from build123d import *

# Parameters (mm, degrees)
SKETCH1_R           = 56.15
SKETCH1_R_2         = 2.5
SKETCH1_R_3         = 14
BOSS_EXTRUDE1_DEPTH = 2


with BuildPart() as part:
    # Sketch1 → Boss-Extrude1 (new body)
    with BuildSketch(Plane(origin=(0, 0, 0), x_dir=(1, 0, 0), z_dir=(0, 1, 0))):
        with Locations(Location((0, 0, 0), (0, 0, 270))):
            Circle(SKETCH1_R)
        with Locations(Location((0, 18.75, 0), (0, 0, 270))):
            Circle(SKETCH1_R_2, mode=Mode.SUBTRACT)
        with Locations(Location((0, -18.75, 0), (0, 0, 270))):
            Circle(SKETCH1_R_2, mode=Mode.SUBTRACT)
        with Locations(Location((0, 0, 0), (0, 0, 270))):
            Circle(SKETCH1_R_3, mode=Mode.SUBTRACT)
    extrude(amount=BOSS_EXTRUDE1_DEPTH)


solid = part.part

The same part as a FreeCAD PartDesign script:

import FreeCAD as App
import Part
import Sketcher
Q = App.Units.Quantity

doc = App.newDocument("Part")
body = doc.addObject("PartDesign::Body", "Body")

# Sketch on XZ plane
sketch1 = body.newObject("Sketcher::SketchObject", "Sketch")
sketch1.AttachmentSupport = (doc.getObject("XZ_Plane"), [""])
sketch1.MapMode = "FlatFace"
sketch1.addGeometry([
    Part.Circle(App.Vector(0, 0, 0), App.Vector(0, 0, 1), 56.15),
    Part.Circle(App.Vector(0, -18.75, 0), App.Vector(0, 0, 1), 2.5),
    Part.Circle(App.Vector(0, 0, 0), App.Vector(0, 0, 1), 14),
    Part.Circle(App.Vector(0, 18.75, 0), App.Vector(0, 0, 1), 2.5),
], False)
sketch1.addConstraint([
    Sketcher.Constraint("Coincident", 0, 3, -1, 1),
    Sketcher.Constraint("Coincident", 2, 3, -1, 1),
    Sketcher.Constraint("Equal", 1, 3),
    Sketcher.Constraint("Symmetric", 1, 3, 3, 3, -1, 1),
    Sketcher.Constraint("PointOnObject", 1, 3, -2),
    Sketcher.Constraint("Diameter", 1, Q("5 mm")),
    Sketcher.Constraint("Diameter", 2, Q("28 mm")),
    Sketcher.Constraint("Diameter", 0, Q("112.3 mm")),
    Sketcher.Constraint("DistanceY", 1, 3, 3, 3, Q("37.5 mm")),
])
pad1 = body.newObject("PartDesign::Pad", "Pad")
pad1.Profile = sketch1
pad1.Length = 2
pad1.Reversed = True

doc.recompute()
